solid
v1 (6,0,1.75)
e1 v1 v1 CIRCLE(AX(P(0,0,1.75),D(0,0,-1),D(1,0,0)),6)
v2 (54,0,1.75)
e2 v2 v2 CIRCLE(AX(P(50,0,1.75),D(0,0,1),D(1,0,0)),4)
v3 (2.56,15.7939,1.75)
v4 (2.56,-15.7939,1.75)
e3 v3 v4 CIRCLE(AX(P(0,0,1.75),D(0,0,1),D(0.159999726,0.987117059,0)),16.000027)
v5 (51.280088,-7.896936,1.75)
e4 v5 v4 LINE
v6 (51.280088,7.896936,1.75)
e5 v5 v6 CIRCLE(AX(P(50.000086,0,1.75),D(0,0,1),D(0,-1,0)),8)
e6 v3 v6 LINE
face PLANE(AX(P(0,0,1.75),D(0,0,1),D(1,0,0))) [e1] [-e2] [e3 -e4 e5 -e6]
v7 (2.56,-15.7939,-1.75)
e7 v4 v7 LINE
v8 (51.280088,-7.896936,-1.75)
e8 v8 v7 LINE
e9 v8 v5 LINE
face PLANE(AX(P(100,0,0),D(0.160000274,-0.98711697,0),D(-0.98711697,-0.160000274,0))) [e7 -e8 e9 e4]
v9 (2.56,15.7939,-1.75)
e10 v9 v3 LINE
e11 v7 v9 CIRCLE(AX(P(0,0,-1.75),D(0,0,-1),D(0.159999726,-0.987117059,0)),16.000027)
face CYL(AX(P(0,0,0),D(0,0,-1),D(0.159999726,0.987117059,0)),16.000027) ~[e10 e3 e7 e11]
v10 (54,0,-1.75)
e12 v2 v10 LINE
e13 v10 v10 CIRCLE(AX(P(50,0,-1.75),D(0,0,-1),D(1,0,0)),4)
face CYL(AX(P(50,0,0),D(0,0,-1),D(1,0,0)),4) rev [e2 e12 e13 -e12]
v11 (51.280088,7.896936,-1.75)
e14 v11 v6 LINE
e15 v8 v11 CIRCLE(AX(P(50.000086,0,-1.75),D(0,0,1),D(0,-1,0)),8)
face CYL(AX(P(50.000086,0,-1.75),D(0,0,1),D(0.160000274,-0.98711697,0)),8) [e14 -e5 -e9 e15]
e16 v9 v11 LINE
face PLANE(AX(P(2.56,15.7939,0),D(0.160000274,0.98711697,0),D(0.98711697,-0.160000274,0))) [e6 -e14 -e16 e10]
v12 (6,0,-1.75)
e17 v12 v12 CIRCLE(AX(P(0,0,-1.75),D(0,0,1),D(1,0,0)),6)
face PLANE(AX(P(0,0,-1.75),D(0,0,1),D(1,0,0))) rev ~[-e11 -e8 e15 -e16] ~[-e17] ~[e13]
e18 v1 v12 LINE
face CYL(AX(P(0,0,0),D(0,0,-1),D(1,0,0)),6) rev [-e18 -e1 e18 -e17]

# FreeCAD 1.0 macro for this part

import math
import FreeCAD as App
import Part
import Sketcher

V = App.Vector
Q = App.Units.Quantity


def edges_at(feature, points):
    """Names of the edges that pass closest to the given points."""
    edges = feature.Shape.Edges
    near = lambda p: min(range(len(edges)), key=lambda i: edges[i].distToShape(Part.Vertex(*p))[0])
    return sorted({f"Edge{near(p) + 1}" for p in points})

doc = App.newDocument("Part")
body = doc.addObject("PartDesign::Body", "Body")

sketch1 = body.newObject("Sketcher::SketchObject", "Sketch")
sketch1.AttachmentSupport = (doc.getObject("XY_Plane"), [""])
sketch1.MapMode = "FlatFace"
sketch1.addGeometry([
    Part.LineSegment(V(2.6, -15.8, 0), V(100, 0, 0)),
    Part.LineSegment(V(100, 0, 0), V(2.6, 15.8, 0)),
    Part.ArcOfCircle(Part.Circle(V(0, 0, 0), V(0, 0, 1), 16), math.radians(81), math.radians(279)),
    Part.Circle(V(50, 0, 0), V(0, 0, 1), 4),
    Part.Circle(V(0, 0, 0), V(0, 0, 1), 6),
], False)
sketch1.addConstraint([
    Sketcher.Constraint("Coincident", 0, 2, 1, 1),
    Sketcher.Constraint("Tangent", 1, 2, 2, 1),
    Sketcher.Constraint("Tangent", 2, 2, 0, 1),
    Sketcher.Constraint("Coincident", 2, 3, -1, 1),
    Sketcher.Constraint("Coincident", 4, 3, -1, 1),
    Sketcher.Constraint("PointOnObject", 3, 3, -1),
    Sketcher.Constraint("PointOnObject", 0, 2, -1),
    Sketcher.Constraint("Diameter", 3, Q("8 mm")),
    Sketcher.Constraint("Diameter", 4, Q("12 mm")),
    Sketcher.Constraint("DistanceX", -1, 1, 3, 3, Q("50 mm")),
    Sketcher.Constraint("Radius", 2, Q("16 mm")),
    Sketcher.Constraint("DistanceX", 3, 3, 0, 2, Q("50 mm")),
])
pad1 = body.newObject("PartDesign::Pad", "Pad")
pad1.Profile = sketch1
pad1.Length = 3.5
pad1.Midplane = True
doc.recompute()

fillet = body.newObject("PartDesign::Fillet", "Fillet")
fillet.Base = (pad1, edges_at(pad1, [(100, 0, 0)]))
fillet.Radius = 8

doc.recompute()
